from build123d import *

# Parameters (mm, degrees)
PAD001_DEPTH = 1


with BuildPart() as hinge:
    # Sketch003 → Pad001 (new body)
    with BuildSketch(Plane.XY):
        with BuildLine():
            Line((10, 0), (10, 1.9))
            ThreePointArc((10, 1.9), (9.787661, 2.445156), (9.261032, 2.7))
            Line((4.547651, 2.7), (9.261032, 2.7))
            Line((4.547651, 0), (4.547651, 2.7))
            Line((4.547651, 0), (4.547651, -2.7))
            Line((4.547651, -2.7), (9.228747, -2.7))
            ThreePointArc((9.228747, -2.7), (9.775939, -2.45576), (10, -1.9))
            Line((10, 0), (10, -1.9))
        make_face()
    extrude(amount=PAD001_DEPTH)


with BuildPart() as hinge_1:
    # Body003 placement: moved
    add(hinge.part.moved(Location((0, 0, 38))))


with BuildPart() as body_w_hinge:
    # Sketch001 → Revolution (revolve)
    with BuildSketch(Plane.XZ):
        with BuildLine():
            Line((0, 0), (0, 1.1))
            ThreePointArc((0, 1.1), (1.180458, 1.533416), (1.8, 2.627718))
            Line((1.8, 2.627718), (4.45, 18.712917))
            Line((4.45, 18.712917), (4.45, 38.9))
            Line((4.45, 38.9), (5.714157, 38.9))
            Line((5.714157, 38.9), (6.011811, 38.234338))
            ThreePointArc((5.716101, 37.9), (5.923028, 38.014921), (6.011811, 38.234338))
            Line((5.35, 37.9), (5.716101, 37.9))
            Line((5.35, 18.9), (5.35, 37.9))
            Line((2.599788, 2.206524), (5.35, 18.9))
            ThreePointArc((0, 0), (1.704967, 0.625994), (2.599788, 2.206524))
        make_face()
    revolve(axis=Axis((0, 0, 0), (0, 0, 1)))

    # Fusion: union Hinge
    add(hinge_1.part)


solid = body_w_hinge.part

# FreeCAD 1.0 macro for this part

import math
import FreeCAD as App
import Part
import Sketcher
from FreeCAD import Vector

doc = App.newDocument("Part")
body = doc.addObject("PartDesign::Body", "Body")

# Sketch on XY plane
sketch1 = doc.addObject("Sketcher::SketchObject", "Sketch")
body.addObject(sketch1)
sketch1.AttachmentSupport = (doc.XY_Plane, [""])
sketch1.MapMode = "FlatFace"
sketch1.addGeometry([
    Part.ArcOfCircle(Part.Circle(Vector(9.2, 1.9, 0), Vector(0, 0, 1), 0.8), math.radians(0), math.radians(86)),  # 0
    Part.LineSegment(Vector(9.3, 2.7, 0), Vector(4.5, 2.7, 0)),  # 1
    Part.LineSegment(Vector(4.5, 2.7, 0), Vector(4.5, -2.7, 0)),  # 2
    Part.LineSegment(Vector(4.5, -2.7, 0), Vector(9.2, -2.7, 0)),  # 3
    Part.ArcOfCircle(Part.Circle(Vector(9.2, -1.9, 0), Vector(0, 0, 1), 0.8), math.radians(-88), math.radians(0)),  # 4
    Part.LineSegment(Vector(10, -1.9, 0), Vector(10, 1.9, 0)),  # 5
], False)
sketch1.addConstraint([
    Sketcher.Constraint("Coincident", 0, 2, 1, 1),
    Sketcher.Constraint("Coincident", 1, 2, 2, 1),
    Sketcher.Constraint("Coincident", 2, 2, 3, 1),
    Sketcher.Constraint("Coincident", 3, 2, 4, 1),
    Sketcher.Constraint("Coincident", 4, 2, 5, 1),
    Sketcher.Constraint("Coincident", 5, 2, 0, 1),
    Sketcher.Constraint("Horizontal", 1),
    Sketcher.Constraint("Vertical", 2),
    Sketcher.Constraint("Horizontal", 3),
    Sketcher.Constraint("Vertical", 5),
    Sketcher.Constraint("Equal", 0, 4),
    Sketcher.Constraint("Radius", 0, 0.8),
    Sketcher.Constraint("DistanceY", 2, 2, 2, 1, 5.4),
    Sketcher.Constraint("DistanceY", 5, 1, 5, 2, 3.8),
    Sketcher.Constraint("DistanceX", -1, 1, 4, 2, 10.0),
    Sketcher.Constraint("DistanceY", -1, 1, 0, 2, 2.7),
    Sketcher.Constraint("DistanceY", 4, 2, -1, 1, 1.9),
    Sketcher.Constraint("DistanceX", 1, 2, 1, 1, 4.713381),
    Sketcher.Constraint("DistanceX", 3, 1, 3, 2, 4.681096),
    Sketcher.Constraint("DistanceY", -1, 1, 0, 3, 1.902332),
])
pad1 = doc.addObject("PartDesign::Pad", "Pad")
body.addObject(pad1)
pad1.Profile = sketch1
pad1.Length = 1
body2 = doc.addObject("PartDesign::Body", "Body001")
doc.recompute()

body.Placement = App.Placement(Vector(0, 0, 38), App.Rotation(Vector(0, 0, 1), 0))
boolean = doc.addObject("PartDesign::Boolean", "Boolean")
body2.addObject(boolean)
boolean.Type = "Fuse"
boolean.addObjects([body])
body3 = doc.addObject("PartDesign::Body", "Body002")

# Sketch on XZ plane
sketch2 = doc.addObject("Sketcher::SketchObject", "Sketch001")
body3.addObject(sketch2)
sketch2.AttachmentSupport = (doc.getObject("XZ_Plane002"), [""])
sketch2.MapMode = "FlatFace"
sketch2.addGeometry([
    Part.LineSegment(Vector(0, 1.1, 0), Vector(0, 0, 0)),  # 0
    Part.ArcOfCircle(Part.Circle(Vector(0, 2.63, 0), Vector(0, 0, 1), 2.63), math.radians(-90), math.radians(-9)),  # 1
    Part.LineSegment(Vector(2.6, 2.21, 0), Vector(5.35, 18.9, 0)),  # 2
    Part.LineSegment(Vector(5.35, 18.9, 0), Vector(5.35, 37.9, 0)),  # 3
    Part.LineSegment(Vector(5.35, 37.9, 0), Vector(5.72, 37.9, 0)),  # 4
    Part.ArcOfCircle(Part.Circle(Vector(5.66, 38.25, 0), Vector(0, 0, 1), 0.36), math.radians(-80), math.radians(-3)),  # 5
    Part.LineSegment(Vector(6.01, 38.23, 0), Vector(5.71, 38.9, 0)),  # 6
    Part.LineSegment(Vector(5.71, 38.9, 0), Vector(4.45, 38.9, 0)),  # 7
    Part.LineSegment(Vector(4.45, 38.9, 0), Vector(4.45, 18.71, 0)),  # 8
    Part.LineSegment(Vector(4.45, 18.71, 0), Vector(1.8, 2.63, 0)),  # 9
    Part.ArcOfCircle(Part.Circle(Vector(0, 2.92, 0), Vector(0, 0, 1), 1.82), math.radians(-90), math.radians(-9)),  # 10
], False)
sketch2.addConstraint([
    Sketcher.Constraint("Coincident", 0, 2, 1, 1),
    Sketcher.Constraint("Tangent", 1, 2, 2, 1),
    Sketcher.Constraint("Coincident", 2, 2, 3, 1),
    Sketcher.Constraint("Coincident", 3, 2, 4, 1),
    Sketcher.Constraint("Coincident", 4, 2, 5, 1),
    Sketcher.Constraint("Coincident", 5, 2, 6, 1),
    Sketcher.Constraint("Coincident", 6, 2, 7, 1),
    Sketcher.Constraint("Coincident", 7, 2, 8, 1),
    Sketcher.Constraint("Coincident", 8, 2, 9, 1),
    Sketcher.Constraint("Tangent", 9, 2, 10, 2),
    Sketcher.Constraint("Coincident", 10, 1, 0, 1),
    Sketcher.Constraint("Vertical", 0),
    Sketcher.Constraint("Vertical", 3),
    Sketcher.Constraint("Horizontal", 4),
    Sketcher.Constraint("Horizontal", 7),
    Sketcher.Constraint("Vertical", 8),
    Sketcher.Constraint("Coincident", 0, 2, -1, 1),
    Sketcher.Constraint("PointOnObject", 1, 3, -2),
    Sketcher.Constraint("PointOnObject", 10, 3, -2),
    Sketcher.Constraint("Parallel", 2, 9),
    Sketcher.Constraint("DistanceY", 3, 1, 3, 2, 19.0),
    Sketcher.Constraint("DistanceY", 0, 2, 0, 1, 1.1),
    Sketcher.Constraint("DistanceY", 4, 2, 6, 2, 1.0),
    Sketcher.Constraint("DistanceY", -1, 1, 2, 2, 18.9),
    Sketcher.Constraint("DistanceX", -1, 1, 9, 2, 1.8),
    Sketcher.Constraint("DistanceX", 7, 2, 3, 2, 0.9),
    Sketcher.Constraint("DistanceX", -1, 1, 2, 2, 5.35),
    Sketcher.Constraint("Radius", 5, 0.355211),
    Sketcher.Constraint("DistanceX", 4, 1, 4, 2, 0.366101),
    Sketcher.Constraint("Radius", 1, 2.634833),
    Sketcher.Constraint("DistanceX", 5, 3, 6, 2, 0.0572),
    Sketcher.Constraint("Distance", 6, 0.72918),
    Sketcher.Constraint("DistanceX", 7, 2, 7, 1, 1.264157),
])
revolution = doc.addObject("PartDesign::Revolution", "Revolution")
body3.addObject(revolution)
revolution.Profile = sketch2
revolution.ReferenceAxis = (sketch2, ["V_Axis"])
revolution.Angle = 360
doc.recompute()

boolean2 = doc.addObject("PartDesign::Boolean", "Boolean001")
body3.addObject(boolean2)
boolean2.Type = "Fuse"
boolean2.addObjects([body2])

doc.recompute()
